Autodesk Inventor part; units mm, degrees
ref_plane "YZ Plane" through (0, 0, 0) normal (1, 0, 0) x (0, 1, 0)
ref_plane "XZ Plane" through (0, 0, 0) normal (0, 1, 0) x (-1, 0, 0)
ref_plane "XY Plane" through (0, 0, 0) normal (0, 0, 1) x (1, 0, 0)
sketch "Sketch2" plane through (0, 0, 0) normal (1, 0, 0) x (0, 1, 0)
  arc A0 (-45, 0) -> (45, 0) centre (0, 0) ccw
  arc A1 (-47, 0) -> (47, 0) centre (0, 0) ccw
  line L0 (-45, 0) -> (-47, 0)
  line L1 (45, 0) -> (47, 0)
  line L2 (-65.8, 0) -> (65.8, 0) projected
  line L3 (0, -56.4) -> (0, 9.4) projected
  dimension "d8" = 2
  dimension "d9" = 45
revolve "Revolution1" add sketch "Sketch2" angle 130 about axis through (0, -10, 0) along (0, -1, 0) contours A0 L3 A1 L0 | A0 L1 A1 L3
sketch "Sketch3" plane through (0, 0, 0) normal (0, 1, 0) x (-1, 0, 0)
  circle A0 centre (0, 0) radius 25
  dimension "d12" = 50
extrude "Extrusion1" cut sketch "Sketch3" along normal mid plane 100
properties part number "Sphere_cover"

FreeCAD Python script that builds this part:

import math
import FreeCAD as App
import Part
import Sketcher
from FreeCAD import Vector

doc = App.newDocument("Part")
body = doc.addObject("PartDesign::Body", "Body")

sketch1 = doc.addObject("Sketcher::SketchObject", "Sketch")
body.addObject(sketch1)
sketch1.AttachmentSupport = (doc.YZ_Plane, [""])
sketch1.MapMode = "FlatFace"
sketch1.addGeometry([
    Part.LineSegment(Vector(-45, 0, 0), Vector(-47, 0, 0)),
    Part.ArcOfCircle(Part.Circle(Vector(0, 0, 0), Vector(0, 0, 1), 47), math.radians(180), math.radians(360)),
    Part.LineSegment(Vector(47, 0, 0), Vector(45, 0, 0)),
    Part.ArcOfCircle(Part.Circle(Vector(0, 0, 0), Vector(0, 0, 1), 45), math.radians(180), math.radians(360)),
], False)
sketch1.addConstraint([
    Sketcher.Constraint("Coincident", 0, 2, 1, 1),
    Sketcher.Constraint("Coincident", 1, 2, 2, 1),
    Sketcher.Constraint("Coincident", 2, 2, 3, 2),
    Sketcher.Constraint("Coincident", 3, 1, 0, 1),
    Sketcher.Constraint("Horizontal", 0),
    Sketcher.Constraint("Horizontal", 2),
    Sketcher.Constraint("Coincident", 1, 3, -1, 1),
    Sketcher.Constraint("Coincident", 3, 3, -1, 1),
    Sketcher.Constraint("PointOnObject", 0, 2, -1),
    Sketcher.Constraint("PointOnObject", 1, 2, -1),
    Sketcher.Constraint("Radius", 3, 45.0),
    Sketcher.Constraint("DistanceX", 0, 2, 0, 1, 2.0),
])
revolution = doc.addObject("PartDesign::Revolution", "Revolution")
body.addObject(revolution)
revolution.Profile = sketch1
revolution.ReferenceAxis = (sketch1, ["H_Axis"])
revolution.Angle = 130
revolution.Reversed = True

sketch2 = doc.addObject("Sketcher::SketchObject", "Sketch001")
body.addObject(sketch2)
sketch2.AttachmentSupport = (doc.XZ_Plane, [""])
sketch2.MapMode = "FlatFace"
sketch2.addGeometry(Part.Circle(Vector(0, 0, 0), Vector(0, 0, 1), 25), False)
sketch2.addConstraint([
    Sketcher.Constraint("Coincident", 0, 3, -1, 1),
    Sketcher.Constraint("Diameter", 0, 50.0),
])
pocket1 = doc.addObject("PartDesign::Pocket", "Pocket")
body.addObject(pocket1)
pocket1.Profile = sketch2
pocket1.Length = 100
pocket1.Midplane = True

doc.recompute()
